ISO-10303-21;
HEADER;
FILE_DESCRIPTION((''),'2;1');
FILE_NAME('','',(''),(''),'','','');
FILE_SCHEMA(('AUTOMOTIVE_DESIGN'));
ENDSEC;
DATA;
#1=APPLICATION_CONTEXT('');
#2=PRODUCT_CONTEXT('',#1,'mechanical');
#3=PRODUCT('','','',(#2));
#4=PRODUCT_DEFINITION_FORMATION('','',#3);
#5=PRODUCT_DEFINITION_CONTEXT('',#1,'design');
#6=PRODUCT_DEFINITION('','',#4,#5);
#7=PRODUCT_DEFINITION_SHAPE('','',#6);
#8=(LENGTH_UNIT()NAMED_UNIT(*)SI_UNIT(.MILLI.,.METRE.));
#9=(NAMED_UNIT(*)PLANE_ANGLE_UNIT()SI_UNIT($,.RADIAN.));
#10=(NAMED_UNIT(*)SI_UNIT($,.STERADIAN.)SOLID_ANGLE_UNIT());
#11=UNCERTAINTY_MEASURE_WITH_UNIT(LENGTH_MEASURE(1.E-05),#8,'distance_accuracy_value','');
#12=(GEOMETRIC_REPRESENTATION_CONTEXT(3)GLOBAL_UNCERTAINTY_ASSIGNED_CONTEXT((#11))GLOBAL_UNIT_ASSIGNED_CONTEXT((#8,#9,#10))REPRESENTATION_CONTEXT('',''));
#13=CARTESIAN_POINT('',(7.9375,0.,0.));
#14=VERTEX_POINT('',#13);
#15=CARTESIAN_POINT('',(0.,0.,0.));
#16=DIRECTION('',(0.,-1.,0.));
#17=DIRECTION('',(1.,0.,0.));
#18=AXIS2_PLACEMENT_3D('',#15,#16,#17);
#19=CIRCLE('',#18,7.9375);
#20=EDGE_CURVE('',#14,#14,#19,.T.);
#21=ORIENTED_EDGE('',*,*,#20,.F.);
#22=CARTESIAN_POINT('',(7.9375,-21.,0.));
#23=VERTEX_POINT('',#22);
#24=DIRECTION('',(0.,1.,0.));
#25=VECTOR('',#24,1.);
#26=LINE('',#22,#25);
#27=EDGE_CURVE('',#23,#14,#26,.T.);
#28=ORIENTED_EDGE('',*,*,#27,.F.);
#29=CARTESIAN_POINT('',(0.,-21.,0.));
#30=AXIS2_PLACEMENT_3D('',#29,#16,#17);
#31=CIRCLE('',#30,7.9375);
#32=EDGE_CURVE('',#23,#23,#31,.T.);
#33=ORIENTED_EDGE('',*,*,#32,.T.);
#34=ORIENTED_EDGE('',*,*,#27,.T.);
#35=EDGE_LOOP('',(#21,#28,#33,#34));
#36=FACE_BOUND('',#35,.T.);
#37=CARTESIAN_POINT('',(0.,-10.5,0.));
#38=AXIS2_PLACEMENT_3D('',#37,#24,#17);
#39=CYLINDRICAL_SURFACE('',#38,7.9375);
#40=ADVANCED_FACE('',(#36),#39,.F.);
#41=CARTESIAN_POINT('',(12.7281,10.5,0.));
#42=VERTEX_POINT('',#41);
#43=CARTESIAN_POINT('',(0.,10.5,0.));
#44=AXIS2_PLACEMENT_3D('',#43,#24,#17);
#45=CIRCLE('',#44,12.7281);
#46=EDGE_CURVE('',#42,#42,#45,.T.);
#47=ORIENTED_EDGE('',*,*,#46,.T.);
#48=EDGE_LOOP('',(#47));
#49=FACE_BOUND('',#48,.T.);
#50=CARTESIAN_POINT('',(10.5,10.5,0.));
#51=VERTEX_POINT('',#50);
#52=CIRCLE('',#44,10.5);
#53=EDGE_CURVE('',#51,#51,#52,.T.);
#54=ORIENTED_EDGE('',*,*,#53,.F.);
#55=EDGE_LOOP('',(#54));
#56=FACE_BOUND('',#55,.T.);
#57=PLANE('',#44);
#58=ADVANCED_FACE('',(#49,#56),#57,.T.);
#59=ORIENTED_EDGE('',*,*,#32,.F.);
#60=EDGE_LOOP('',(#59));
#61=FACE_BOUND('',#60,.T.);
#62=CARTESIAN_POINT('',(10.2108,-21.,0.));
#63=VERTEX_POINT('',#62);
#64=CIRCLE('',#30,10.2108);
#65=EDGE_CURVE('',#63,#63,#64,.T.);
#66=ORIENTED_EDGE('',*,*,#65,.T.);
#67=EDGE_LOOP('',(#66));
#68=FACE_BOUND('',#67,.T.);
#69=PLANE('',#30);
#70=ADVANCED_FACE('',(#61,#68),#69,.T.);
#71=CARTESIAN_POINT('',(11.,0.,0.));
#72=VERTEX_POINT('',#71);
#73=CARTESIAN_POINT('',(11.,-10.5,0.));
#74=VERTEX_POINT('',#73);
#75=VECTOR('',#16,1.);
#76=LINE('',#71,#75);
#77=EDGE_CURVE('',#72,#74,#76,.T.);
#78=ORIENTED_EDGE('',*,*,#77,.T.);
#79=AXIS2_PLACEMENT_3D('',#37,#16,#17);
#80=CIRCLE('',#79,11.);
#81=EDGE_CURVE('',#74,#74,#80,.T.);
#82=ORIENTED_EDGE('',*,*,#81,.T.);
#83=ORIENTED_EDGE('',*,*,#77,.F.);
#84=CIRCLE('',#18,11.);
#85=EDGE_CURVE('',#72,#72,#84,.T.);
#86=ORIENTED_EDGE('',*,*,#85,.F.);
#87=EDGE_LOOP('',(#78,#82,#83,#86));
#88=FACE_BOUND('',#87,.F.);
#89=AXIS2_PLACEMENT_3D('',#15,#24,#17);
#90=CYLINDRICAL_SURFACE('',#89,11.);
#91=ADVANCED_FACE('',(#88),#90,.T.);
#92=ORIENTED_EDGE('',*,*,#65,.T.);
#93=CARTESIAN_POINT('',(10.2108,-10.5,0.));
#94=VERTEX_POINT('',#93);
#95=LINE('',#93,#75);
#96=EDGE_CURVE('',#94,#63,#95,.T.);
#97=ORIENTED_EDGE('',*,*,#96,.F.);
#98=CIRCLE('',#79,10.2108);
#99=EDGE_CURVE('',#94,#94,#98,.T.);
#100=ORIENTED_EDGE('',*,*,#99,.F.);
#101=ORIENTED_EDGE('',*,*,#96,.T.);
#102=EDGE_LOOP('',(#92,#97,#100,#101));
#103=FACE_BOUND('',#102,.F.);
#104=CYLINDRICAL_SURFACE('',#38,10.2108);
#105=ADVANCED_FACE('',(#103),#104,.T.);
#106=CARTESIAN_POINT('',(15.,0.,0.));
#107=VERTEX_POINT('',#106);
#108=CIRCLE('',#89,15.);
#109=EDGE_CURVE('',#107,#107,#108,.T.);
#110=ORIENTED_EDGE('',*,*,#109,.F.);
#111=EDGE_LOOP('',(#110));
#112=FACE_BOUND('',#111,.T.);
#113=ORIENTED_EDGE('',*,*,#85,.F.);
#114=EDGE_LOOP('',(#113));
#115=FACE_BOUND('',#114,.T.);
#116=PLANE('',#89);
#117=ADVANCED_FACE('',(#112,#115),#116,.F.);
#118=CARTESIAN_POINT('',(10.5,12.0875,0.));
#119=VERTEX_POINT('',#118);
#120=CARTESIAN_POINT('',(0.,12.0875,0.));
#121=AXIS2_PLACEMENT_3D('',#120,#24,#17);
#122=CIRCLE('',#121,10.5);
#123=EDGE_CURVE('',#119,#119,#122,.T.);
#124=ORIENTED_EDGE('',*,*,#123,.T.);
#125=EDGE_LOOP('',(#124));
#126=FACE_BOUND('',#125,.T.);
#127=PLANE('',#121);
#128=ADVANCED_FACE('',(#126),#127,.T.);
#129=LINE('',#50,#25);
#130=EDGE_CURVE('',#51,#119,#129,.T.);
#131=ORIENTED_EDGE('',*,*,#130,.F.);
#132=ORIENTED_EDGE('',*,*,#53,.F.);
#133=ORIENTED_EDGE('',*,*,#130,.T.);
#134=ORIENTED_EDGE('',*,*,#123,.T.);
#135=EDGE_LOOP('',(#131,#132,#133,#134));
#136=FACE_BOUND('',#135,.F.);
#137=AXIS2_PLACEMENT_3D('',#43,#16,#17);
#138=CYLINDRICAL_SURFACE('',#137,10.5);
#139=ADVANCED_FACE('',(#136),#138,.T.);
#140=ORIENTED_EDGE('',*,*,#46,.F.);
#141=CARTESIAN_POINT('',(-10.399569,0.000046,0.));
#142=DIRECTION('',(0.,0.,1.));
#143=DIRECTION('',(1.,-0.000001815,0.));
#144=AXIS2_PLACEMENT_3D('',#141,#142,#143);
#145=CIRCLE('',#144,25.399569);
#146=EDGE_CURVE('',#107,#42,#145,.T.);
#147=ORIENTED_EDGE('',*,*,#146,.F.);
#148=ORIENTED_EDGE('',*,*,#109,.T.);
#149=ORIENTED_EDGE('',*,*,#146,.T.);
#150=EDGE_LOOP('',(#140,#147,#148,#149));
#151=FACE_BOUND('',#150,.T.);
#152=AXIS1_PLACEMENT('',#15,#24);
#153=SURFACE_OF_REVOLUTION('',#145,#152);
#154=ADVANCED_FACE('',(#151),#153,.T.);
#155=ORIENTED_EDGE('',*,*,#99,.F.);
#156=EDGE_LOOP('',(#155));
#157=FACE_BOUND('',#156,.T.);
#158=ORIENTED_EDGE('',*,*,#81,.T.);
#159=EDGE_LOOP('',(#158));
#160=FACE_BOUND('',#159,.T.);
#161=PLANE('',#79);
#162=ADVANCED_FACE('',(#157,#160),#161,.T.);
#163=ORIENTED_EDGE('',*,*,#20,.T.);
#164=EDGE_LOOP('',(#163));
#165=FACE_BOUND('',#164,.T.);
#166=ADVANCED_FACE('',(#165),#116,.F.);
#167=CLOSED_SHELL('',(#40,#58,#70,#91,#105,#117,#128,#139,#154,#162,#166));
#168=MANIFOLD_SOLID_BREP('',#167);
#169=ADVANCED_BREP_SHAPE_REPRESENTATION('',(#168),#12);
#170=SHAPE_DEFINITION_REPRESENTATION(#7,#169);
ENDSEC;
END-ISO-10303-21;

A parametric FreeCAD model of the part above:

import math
import FreeCAD as App
import Part
import Sketcher
from FreeCAD import Vector

doc = App.newDocument("Part")
body = doc.addObject("PartDesign::Body", "Body")

# Sketch on XY plane
sketch1 = body.newObject("Sketcher::SketchObject", "Sketch")
sketch1.AttachmentSupport = (doc.getObject("XY_Plane"), [""])
sketch1.MapMode = "FlatFace"
sketch1.addGeometry([
    Part.LineSegment(Vector(0, 10, 0), Vector(0, 0, 0)),
    Part.LineSegment(Vector(0, 0, 0), Vector(15, 0, 0)),
    Part.ArcOfCircle(Part.Circle(Vector(-10, 0, 0), Vector(0, 0, 1), 25), math.radians(0), math.radians(24)),
    Part.LineSegment(Vector(13, 10, 0), Vector(0, 10, 0)),
], False)
sketch1.addConstraint([
    Sketcher.Constraint("Coincident", 0, 2, 1, 1),
    Sketcher.Constraint("Coincident", 1, 2, 2, 1),
    Sketcher.Constraint("Coincident", 2, 2, 3, 1),
    Sketcher.Constraint("Coincident", 3, 2, 0, 1),
    Sketcher.Constraint("Vertical", 0),
    Sketcher.Constraint("Horizontal", 1),
    Sketcher.Constraint("Horizontal", 3),
    Sketcher.Constraint("Coincident", 0, 2, -1, 1),
    Sketcher.Constraint("PointOnObject", 2, 3, -1),
    Sketcher.Constraint("Radius", 2, 25.4),
    Sketcher.Constraint("DistanceY", 0, 2, 0, 1, 10.5),
    Sketcher.Constraint("DistanceX", 1, 1, 1, 2, 15.0),
])
revolution = body.newObject("PartDesign::Revolution", "Revolution")
revolution.Profile = sketch1
revolution.ReferenceAxis = (sketch1, ["V_Axis"])
revolution.Angle = 360

# Sketch on XZ plane
sketch2 = body.newObject("Sketcher::SketchObject", "Sketch001")
sketch2.AttachmentSupport = (doc.getObject("XZ_Plane"), [""])
sketch2.MapMode = "FlatFace"
sketch2.AttachmentOffset = App.Placement(Vector(0, 0, -10.5), App.Rotation())
sketch2.addGeometry(Part.Circle(Vector(0, 0, 0), Vector(0, 0, 1), 10), False)
sketch2.addConstraint([
    Sketcher.Constraint("Coincident", 0, 3, -1, 1),
    Sketcher.Constraint("Diameter", 0, 21.0),
])
pad1 = body.newObject("PartDesign::Pad", "Pad")
pad1.Profile = sketch2
pad1.Length = 1.5875
pad1.Reversed = True

# Sketch on XZ plane
sketch3 = body.newObject("Sketcher::SketchObject", "Sketch002")
sketch3.AttachmentSupport = (doc.getObject("XZ_Plane"), [""])
sketch3.MapMode = "FlatFace"
sketch3.addGeometry([
    Part.Circle(Vector(0, 0, 0), Vector(0, 0, 1), 11),
    Part.Circle(Vector(0, 0, 0), Vector(0, 0, 1), 8),
], False)
sketch3.addConstraint([
    Sketcher.Constraint("Coincident", 0, 3, -1, 1),
    Sketcher.Constraint("Coincident", 1, 3, -1, 1),
    Sketcher.Constraint("Diameter", 0, 22.0),
    Sketcher.Constraint("Diameter", 1, 15.875),
])
pad2 = body.newObject("PartDesign::Pad", "Pad001")
pad2.Profile = sketch3
pad2.Length = 10.5

# Sketch on XZ plane
sketch4 = body.newObject("Sketcher::SketchObject", "Sketch003")
sketch4.AttachmentSupport = (doc.getObject("XZ_Plane"), [""])
sketch4.MapMode = "FlatFace"
sketch4.AttachmentOffset = App.Placement(Vector(0, 0, 10.5), App.Rotation())
sketch4.addGeometry([
    Part.Circle(Vector(0, 0, 0), Vector(0, 0, 1), 10),
    Part.Circle(Vector(0, 0, 0), Vector(0, 0, 1), 8),
], False)
sketch4.addConstraint([
    Sketcher.Constraint("Coincident", 0, 3, -1, 1),
    Sketcher.Constraint("Coincident", 1, 3, -1, 1),
    Sketcher.Constraint("Diameter", 0, 20.4216),
    Sketcher.Constraint("Diameter", 1, 15.875),
])
pad3 = body.newObject("PartDesign::Pad", "Pad002")
pad3.Profile = sketch4
pad3.Length = 10.5

doc.recompute()
